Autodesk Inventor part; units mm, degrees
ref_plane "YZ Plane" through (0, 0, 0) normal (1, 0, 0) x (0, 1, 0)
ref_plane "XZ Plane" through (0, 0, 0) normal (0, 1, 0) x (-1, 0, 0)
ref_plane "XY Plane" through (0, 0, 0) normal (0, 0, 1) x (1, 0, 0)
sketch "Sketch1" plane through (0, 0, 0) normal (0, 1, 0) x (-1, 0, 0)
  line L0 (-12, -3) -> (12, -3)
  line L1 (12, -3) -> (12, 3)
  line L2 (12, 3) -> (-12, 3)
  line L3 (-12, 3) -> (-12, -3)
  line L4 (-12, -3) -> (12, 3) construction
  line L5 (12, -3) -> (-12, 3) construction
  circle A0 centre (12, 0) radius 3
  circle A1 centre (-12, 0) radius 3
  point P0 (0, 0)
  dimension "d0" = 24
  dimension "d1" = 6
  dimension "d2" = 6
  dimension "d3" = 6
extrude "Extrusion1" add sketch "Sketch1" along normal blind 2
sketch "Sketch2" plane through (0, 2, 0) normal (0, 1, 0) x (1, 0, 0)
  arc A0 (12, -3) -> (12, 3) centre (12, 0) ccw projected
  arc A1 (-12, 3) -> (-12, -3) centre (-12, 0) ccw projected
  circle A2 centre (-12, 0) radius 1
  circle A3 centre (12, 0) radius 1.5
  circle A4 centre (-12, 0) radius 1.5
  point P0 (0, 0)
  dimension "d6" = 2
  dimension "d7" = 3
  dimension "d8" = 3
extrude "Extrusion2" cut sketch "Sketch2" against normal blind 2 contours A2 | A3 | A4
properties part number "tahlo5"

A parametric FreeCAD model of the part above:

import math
import FreeCAD as App
import Part
import Sketcher
Q = App.Units.Quantity

doc = App.newDocument("Part")
body = doc.addObject("PartDesign::Body", "Body")

# Sketch on XZ plane
sketch1 = body.newObject("Sketcher::SketchObject", "Sketch")
sketch1.AttachmentSupport = (doc.getObject("XZ_Plane"), [""])
sketch1.MapMode = "FlatFace"
sketch1.addGeometry([
    Part.LineSegment(App.Vector(-12, 3, 0), App.Vector(12, 3, 0)),
    Part.ArcOfCircle(Part.Circle(App.Vector(12, 0, 0), App.Vector(0, 0, 1), 3), math.radians(-90), math.radians(90)),
    Part.LineSegment(App.Vector(12, -3, 0), App.Vector(-12, -3, 0)),
    Part.ArcOfCircle(Part.Circle(App.Vector(-12, 0, 0), App.Vector(0, 0, 1), 3), math.radians(90), math.radians(270)),
], False)
sketch1.addConstraint([
    Sketcher.Constraint("Tangent", 0, 2, 1, 2),
    Sketcher.Constraint("Tangent", 1, 1, 2, 1),
    Sketcher.Constraint("Tangent", 2, 2, 3, 2),
    Sketcher.Constraint("Tangent", 3, 1, 0, 1),
    Sketcher.Constraint("Horizontal", 0),
    Sketcher.Constraint("Horizontal", 2),
    Sketcher.Constraint("Symmetric", 1, 3, 3, 3, -1, 1),
    Sketcher.Constraint("Radius", 1, Q("3 mm")),
    Sketcher.Constraint("DistanceX", 0, 1, 0, 2, Q("24 mm")),
])
pad1 = body.newObject("PartDesign::Pad", "Pad")
pad1.Profile = sketch1
pad1.Length = 2
pad1.Reversed = True

# Sketch on XZ plane
sketch2 = body.newObject("Sketcher::SketchObject", "Sketch001")
sketch2.AttachmentSupport = (doc.getObject("XZ_Plane"), [""])
sketch2.MapMode = "FlatFace"
sketch2.AttachmentOffset = App.Placement(App.Vector(0, 0, -2), App.Rotation())
sketch2.addGeometry([
    Part.Circle(App.Vector(-12, 0, 0), App.Vector(0, 0, 1), 1.5),
    Part.Circle(App.Vector(12, 0, 0), App.Vector(0, 0, 1), 1.5),
], False)
sketch2.addConstraint([
    Sketcher.Constraint("Equal", 0, 1),
    Sketcher.Constraint("Symmetric", 0, 3, 1, 3, -1, 1),
    Sketcher.Constraint("PointOnObject", 0, 3, -1),
    Sketcher.Constraint("Diameter", 0, Q("3 mm")),
    Sketcher.Constraint("DistanceX", 0, 3, -1, 1, Q("12 mm")),
])
pocket1 = body.newObject("PartDesign::Pocket", "Pocket")
pocket1.Profile = sketch2
pocket1.Length = 2
pocket1.Reversed = True

doc.recompute()
